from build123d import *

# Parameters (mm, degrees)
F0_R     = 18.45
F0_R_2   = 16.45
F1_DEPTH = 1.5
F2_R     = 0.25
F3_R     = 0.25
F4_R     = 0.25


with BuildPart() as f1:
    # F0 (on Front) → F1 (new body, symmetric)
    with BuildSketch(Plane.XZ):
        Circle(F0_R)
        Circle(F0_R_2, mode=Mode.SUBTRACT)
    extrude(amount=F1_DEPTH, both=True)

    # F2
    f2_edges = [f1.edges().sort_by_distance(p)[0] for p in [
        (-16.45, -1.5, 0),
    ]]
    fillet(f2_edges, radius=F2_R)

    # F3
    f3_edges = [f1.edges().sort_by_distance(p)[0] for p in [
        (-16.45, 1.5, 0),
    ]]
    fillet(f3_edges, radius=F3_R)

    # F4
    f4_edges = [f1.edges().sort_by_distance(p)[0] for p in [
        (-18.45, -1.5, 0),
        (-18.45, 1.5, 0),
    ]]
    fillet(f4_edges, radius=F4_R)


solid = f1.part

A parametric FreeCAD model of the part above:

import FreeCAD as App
import Part
import Sketcher
from FreeCAD import Vector
Q = App.Units.Quantity


def edges_at(feature, points):
    """Names of the edges that pass closest to the given points."""
    edges = feature.Shape.Edges
    near = lambda p: min(range(len(edges)), key=lambda i: edges[i].distToShape(Part.Vertex(*p))[0])
    return sorted({f"Edge{near(p) + 1}" for p in points})

doc = App.newDocument("Part")
body = doc.addObject("PartDesign::Body", "Body")

# Sketch on XZ plane
sketch1 = body.newObject("Sketcher::SketchObject", "Sketch")
sketch1.AttachmentSupport = (doc.getObject("XZ_Plane"), [""])
sketch1.MapMode = "FlatFace"
sketch1.addGeometry([
    Part.Circle(Vector(0, 0, 0), Vector(0, 0, 1), 18),
    Part.Circle(Vector(0, 0, 0), Vector(0, 0, 1), 16),
], False)
sketch1.addConstraint([
    Sketcher.Constraint("Coincident", 0, 3, -1, 1),
    Sketcher.Constraint("Coincident", 1, 3, -1, 1),
    Sketcher.Constraint("Diameter", 0, Q("36.9 mm")),
    Sketcher.Constraint("Diameter", 1, Q("32.9 mm")),
])
pad1 = body.newObject("PartDesign::Pad", "Pad")
pad1.Profile = sketch1
pad1.Length = 3
pad1.Midplane = True
doc.recompute()

fillet = body.newObject("PartDesign::Fillet", "Fillet")
fillet.Base = (pad1, edges_at(pad1, [(-16.45, -1.5, 0)]))
fillet.Radius = 0.25
doc.recompute()

fillet2 = body.newObject("PartDesign::Fillet", "Fillet001")
fillet2.Base = (fillet, edges_at(fillet, [(-16.45, 1.5, 0)]))
fillet2.Radius = 0.25
doc.recompute()

fillet3 = body.newObject("PartDesign::Fillet", "Fillet002")
fillet3.Base = (fillet2, edges_at(fillet2, [(-18.45, -1.5, 0), (-18.45, 1.5, 0)]))
fillet3.Radius = 0.25

doc.recompute()
